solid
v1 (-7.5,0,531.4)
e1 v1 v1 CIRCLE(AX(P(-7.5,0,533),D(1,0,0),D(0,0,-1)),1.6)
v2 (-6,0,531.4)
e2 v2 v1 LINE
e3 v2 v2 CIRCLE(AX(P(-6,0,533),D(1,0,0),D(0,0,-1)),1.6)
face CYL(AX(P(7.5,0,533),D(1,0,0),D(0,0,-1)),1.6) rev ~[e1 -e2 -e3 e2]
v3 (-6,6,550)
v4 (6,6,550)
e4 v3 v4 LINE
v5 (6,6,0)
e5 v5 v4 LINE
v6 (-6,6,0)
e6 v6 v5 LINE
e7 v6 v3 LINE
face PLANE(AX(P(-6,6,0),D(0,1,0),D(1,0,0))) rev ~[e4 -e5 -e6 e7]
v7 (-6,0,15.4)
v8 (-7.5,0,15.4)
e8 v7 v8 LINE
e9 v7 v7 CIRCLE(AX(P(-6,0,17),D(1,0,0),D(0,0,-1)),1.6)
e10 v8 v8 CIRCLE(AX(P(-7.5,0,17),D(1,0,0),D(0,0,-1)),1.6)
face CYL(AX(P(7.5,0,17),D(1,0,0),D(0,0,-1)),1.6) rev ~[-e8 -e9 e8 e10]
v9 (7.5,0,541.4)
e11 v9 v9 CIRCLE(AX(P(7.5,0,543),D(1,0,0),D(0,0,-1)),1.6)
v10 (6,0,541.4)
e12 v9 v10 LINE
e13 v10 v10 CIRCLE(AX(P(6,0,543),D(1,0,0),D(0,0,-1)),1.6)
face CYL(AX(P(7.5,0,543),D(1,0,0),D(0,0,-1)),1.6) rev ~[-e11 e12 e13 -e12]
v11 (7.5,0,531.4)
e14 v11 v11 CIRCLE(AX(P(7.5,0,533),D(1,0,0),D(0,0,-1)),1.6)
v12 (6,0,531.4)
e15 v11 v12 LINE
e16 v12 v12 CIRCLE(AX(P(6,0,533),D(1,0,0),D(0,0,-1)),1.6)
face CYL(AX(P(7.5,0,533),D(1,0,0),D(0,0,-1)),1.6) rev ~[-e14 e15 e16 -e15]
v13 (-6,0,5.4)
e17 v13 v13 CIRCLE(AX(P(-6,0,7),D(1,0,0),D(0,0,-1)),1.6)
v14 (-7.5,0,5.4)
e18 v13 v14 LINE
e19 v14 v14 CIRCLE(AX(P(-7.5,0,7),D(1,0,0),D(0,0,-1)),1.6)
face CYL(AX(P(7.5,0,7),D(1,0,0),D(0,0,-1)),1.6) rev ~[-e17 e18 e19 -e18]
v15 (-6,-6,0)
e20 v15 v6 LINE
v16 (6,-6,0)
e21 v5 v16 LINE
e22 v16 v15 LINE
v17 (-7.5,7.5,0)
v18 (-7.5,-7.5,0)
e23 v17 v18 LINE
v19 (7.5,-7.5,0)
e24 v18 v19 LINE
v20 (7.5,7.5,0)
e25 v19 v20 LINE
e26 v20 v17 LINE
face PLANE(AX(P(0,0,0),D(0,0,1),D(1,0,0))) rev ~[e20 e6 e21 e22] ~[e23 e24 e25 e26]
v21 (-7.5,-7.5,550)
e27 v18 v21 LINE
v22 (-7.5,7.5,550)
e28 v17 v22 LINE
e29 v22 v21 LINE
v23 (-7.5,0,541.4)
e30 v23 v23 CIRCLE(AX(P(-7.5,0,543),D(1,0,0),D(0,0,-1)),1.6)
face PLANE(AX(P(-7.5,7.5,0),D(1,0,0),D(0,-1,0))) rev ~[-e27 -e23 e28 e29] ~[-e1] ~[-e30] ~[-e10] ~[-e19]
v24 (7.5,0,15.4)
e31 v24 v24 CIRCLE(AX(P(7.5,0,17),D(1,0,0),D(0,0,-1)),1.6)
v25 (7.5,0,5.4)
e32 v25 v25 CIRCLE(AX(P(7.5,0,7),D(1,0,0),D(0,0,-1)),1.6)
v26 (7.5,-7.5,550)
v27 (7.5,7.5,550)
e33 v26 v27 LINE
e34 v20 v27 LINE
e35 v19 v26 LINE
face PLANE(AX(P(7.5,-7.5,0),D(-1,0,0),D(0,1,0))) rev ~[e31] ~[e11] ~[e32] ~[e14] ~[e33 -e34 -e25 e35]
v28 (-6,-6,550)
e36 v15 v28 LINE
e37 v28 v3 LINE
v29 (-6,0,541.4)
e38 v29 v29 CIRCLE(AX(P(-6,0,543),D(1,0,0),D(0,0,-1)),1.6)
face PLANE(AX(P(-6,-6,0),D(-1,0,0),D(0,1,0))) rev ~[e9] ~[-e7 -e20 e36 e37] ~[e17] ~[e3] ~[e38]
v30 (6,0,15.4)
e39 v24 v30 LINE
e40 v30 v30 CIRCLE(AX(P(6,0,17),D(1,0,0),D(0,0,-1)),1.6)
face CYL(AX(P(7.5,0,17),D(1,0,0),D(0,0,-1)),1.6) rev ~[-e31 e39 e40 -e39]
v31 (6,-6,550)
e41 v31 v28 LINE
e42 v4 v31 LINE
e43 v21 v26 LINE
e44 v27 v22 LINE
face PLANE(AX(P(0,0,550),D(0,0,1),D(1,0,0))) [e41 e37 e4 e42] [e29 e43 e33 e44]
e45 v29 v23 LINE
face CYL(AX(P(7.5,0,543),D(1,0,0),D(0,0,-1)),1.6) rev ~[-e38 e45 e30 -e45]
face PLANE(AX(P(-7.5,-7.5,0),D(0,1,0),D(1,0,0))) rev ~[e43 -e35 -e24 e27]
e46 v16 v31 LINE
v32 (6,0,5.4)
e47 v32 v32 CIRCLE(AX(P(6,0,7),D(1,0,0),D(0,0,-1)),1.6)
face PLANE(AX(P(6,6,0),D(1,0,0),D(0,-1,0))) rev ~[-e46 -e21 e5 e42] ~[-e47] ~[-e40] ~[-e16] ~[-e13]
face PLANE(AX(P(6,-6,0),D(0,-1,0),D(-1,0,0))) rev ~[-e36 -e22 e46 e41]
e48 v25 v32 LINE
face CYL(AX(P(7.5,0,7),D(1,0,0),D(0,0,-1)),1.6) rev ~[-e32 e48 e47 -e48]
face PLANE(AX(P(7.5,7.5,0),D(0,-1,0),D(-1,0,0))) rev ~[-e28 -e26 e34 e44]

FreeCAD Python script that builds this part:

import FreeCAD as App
import Part
import Sketcher

V = App.Vector

doc = App.newDocument("Part")
params = doc.addObject("Spreadsheet::Sheet", "Params")
for row, (alias, value) in enumerate([
    ("sketch1_width", "15 mm"),
    ("pad1_length", "550 mm"),
    ("sketch2_diameter", "3.2 mm"),
], start=1):
    params.set(f"A{row}", alias)
    params.set(f"B{row}", "=" + value)
    params.setAlias(f"B{row}", alias)

body = doc.addObject("PartDesign::Body", "Body")

# Sketch on XY plane
sketch1 = body.newObject("Sketcher::SketchObject", "Sketch")
sketch1.AttachmentSupport = (doc.getObject("XY_Plane"), [""])
sketch1.MapMode = "FlatFace"
sketch1.addGeometry(Part.LineSegment(V(8, -8, 0), V(8, 8, 0)), False)
sketch1.addGeometry(Part.LineSegment(V(8, 8, 0), V(-8, 8, 0)), False)
sketch1.addGeometry(Part.LineSegment(V(-8, 8, 0), V(-8, -8, 0)), False)
sketch1.addGeometry(Part.LineSegment(V(-8, -8, 0), V(8, -8, 0)), False)
sketch1.addGeometry(Part.LineSegment(V(-6, -6, 0), V(-6, 6, 0)), False)
sketch1.addGeometry(Part.LineSegment(V(-6, 6, 0), V(6, 6, 0)), False)
sketch1.addGeometry(Part.LineSegment(V(6, 6, 0), V(6, -6, 0)), False)
sketch1.addGeometry(Part.LineSegment(V(6, -6, 0), V(-6, -6, 0)), False)
sketch1.addConstraint(Sketcher.Constraint("Coincident", 0, 2, 1, 1))
sketch1.addConstraint(Sketcher.Constraint("Coincident", 1, 2, 2, 1))
sketch1.addConstraint(Sketcher.Constraint("Coincident", 2, 2, 3, 1))
sketch1.addConstraint(Sketcher.Constraint("Coincident", 3, 2, 0, 1))
sketch1.addConstraint(Sketcher.Constraint("Coincident", 4, 2, 5, 1))
sketch1.addConstraint(Sketcher.Constraint("Coincident", 5, 2, 6, 1))
sketch1.addConstraint(Sketcher.Constraint("Coincident", 6, 2, 7, 1))
sketch1.addConstraint(Sketcher.Constraint("Coincident", 7, 2, 4, 1))
sketch1.addConstraint(Sketcher.Constraint("Vertical", 0))
sketch1.addConstraint(Sketcher.Constraint("Horizontal", 1))
sketch1.addConstraint(Sketcher.Constraint("Vertical", 2))
sketch1.addConstraint(Sketcher.Constraint("Horizontal", 3))
sketch1.addConstraint(Sketcher.Constraint("Vertical", 4))
sketch1.addConstraint(Sketcher.Constraint("Horizontal", 5))
sketch1.addConstraint(Sketcher.Constraint("Vertical", 6))
sketch1.addConstraint(Sketcher.Constraint("Horizontal", 7))
sketch1.addConstraint(Sketcher.Constraint("Symmetric", 0, 2, 2, 2, -1, 1))
sketch1.addConstraint(Sketcher.Constraint("Symmetric", 4, 2, 6, 2, -1, 1))
sketch1.addConstraint(Sketcher.Constraint("Equal", 3, 0))
sketch1.addConstraint(Sketcher.Constraint("Equal", 7, 4))
sketch1.addConstraint(Sketcher.Constraint("DistanceX", 1, 2, 1, 1, 15.0))
sketch1.addConstraint(Sketcher.Constraint("DistanceX", 1, 2, 4, 2, 1.5))
sketch1.setExpression("Constraints[20]", "Params.sketch1_width")
pad1 = body.newObject("PartDesign::Pad", "Pad")
pad1.Profile = sketch1
pad1.setExpression("Length", "Params.pad1_length")

# Sketch on YZ plane
sketch2 = body.newObject("Sketcher::SketchObject", "Sketch001")
sketch2.AttachmentSupport = (doc.getObject("YZ_Plane"), [""])
sketch2.MapMode = "FlatFace"
sketch2.AttachmentOffset = App.Placement(V(0, 0, 7.5), App.Rotation())
sketch2.addGeometry(Part.Circle(V(0, 7, 0), V(0, 0, 1), 1.6), False)
sketch2.addGeometry(Part.Circle(V(0, 17, 0), V(0, 0, 1), 1.6), False)
sketch2.addGeometry(Part.Circle(V(0, 533, 0), V(0, 0, 1), 1.6), False)
sketch2.addGeometry(Part.Circle(V(0, 543, 0), V(0, 0, 1), 1.6), False)
sketch2.addConstraint(Sketcher.Constraint("Equal", 0, 1))
sketch2.addConstraint(Sketcher.Constraint("Equal", 1, 2))
sketch2.addConstraint(Sketcher.Constraint("Equal", 2, 3))
sketch2.addConstraint(Sketcher.Constraint("PointOnObject", 0, 3, -2))
sketch2.addConstraint(Sketcher.Constraint("PointOnObject", 1, 3, -2))
sketch2.addConstraint(Sketcher.Constraint("PointOnObject", 2, 3, -2))
sketch2.addConstraint(Sketcher.Constraint("PointOnObject", 3, 3, -2))
sketch2.addConstraint(Sketcher.Constraint("Diameter", 0, 3.2))
sketch2.addConstraint(Sketcher.Constraint("DistanceY", -1, 1, 0, 3, 7.0))
sketch2.addConstraint(Sketcher.Constraint("DistanceY", 0, 3, 1, 3, 10.0))
sketch2.addConstraint(Sketcher.Constraint("DistanceY", 2, 3, 3, 3, 10.0))
sketch2.addConstraint(Sketcher.Constraint("DistanceY", -1, 1, 2, 3, 533.0))
sketch2.setExpression("Constraints[7]", "Params.sketch2_diameter")
pocket1 = body.newObject("PartDesign::Pocket", "Pocket")
pocket1.Profile = sketch2
pocket1.Type = "ThroughAll"

doc.recompute()
